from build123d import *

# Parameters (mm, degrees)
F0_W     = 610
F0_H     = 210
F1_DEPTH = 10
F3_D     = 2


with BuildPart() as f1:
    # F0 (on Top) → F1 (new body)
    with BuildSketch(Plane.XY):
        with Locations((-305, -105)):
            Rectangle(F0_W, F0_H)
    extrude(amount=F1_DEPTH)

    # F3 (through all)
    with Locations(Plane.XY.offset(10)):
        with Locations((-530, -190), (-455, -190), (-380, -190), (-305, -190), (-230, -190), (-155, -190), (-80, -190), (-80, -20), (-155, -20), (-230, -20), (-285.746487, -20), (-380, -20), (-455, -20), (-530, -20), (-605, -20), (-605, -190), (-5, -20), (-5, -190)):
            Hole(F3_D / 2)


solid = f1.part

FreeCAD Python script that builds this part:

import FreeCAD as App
import Part
import Sketcher
from FreeCAD import Vector

doc = App.newDocument("Part")
body = doc.addObject("PartDesign::Body", "Body")

sketch1 = body.newObject("Sketcher::SketchObject", "Sketch")
sketch1.AttachmentSupport = (doc.getObject("XY_Plane"), [""])
sketch1.MapMode = "FlatFace"
sketch1.addGeometry([
    Part.LineSegment(Vector(-610, 0, 0), Vector(-610, -210, 0)),
    Part.LineSegment(Vector(-610, -210, 0), Vector(0, -210, 0)),
    Part.LineSegment(Vector(0, -210, 0), Vector(0, 0, 0)),
    Part.LineSegment(Vector(0, 0, 0), Vector(-610, 0, 0)),
], False)
sketch1.addConstraint([
    Sketcher.Constraint("Coincident", 0, 2, 1, 1),
    Sketcher.Constraint("Coincident", 1, 2, 2, 1),
    Sketcher.Constraint("Coincident", 2, 2, 3, 1),
    Sketcher.Constraint("Coincident", 3, 2, 0, 1),
    Sketcher.Constraint("Vertical", 0),
    Sketcher.Constraint("Horizontal", 1),
    Sketcher.Constraint("Vertical", 2),
    Sketcher.Constraint("Horizontal", 3),
    Sketcher.Constraint("Coincident", 2, 2, -1, 1),
    Sketcher.Constraint("DistanceX", 1, 1, 1, 2, 610.0),
    Sketcher.Constraint("DistanceY", 0, 2, 0, 1, 210.0),
])
pad1 = body.newObject("PartDesign::Pad", "Pad")
pad1.Profile = sketch1
pad1.Length = 10

sketch2 = body.newObject("Sketcher::SketchObject", "Sketch001")
sketch2.AttachmentSupport = (doc.getObject("XY_Plane"), [""])
sketch2.MapMode = "FlatFace"
sketch2.AttachmentOffset = App.Placement(Vector(0, 0, 10), App.Rotation())
sketch2.addGeometry([
    Part.Circle(Vector(-530, -190, 0), Vector(0, 0, 1), 1),
    Part.Circle(Vector(-455, -190, 0), Vector(0, 0, 1), 1),
    Part.Circle(Vector(-380, -190, 0), Vector(0, 0, 1), 1),
    Part.Circle(Vector(-305, -190, 0), Vector(0, 0, 1), 1),
    Part.Circle(Vector(-230, -190, 0), Vector(0, 0, 1), 1),
    Part.Circle(Vector(-155, -190, 0), Vector(0, 0, 1), 1),
    Part.Circle(Vector(-80, -190, 0), Vector(0, 0, 1), 1),
    Part.Circle(Vector(-80, -20, 0), Vector(0, 0, 1), 1),
    Part.Circle(Vector(-155, -20, 0), Vector(0, 0, 1), 1),
    Part.Circle(Vector(-230, -20, 0), Vector(0, 0, 1), 1),
    Part.Circle(Vector(-285.7, -20, 0), Vector(0, 0, 1), 1),
    Part.Circle(Vector(-380, -20, 0), Vector(0, 0, 1), 1),
    Part.Circle(Vector(-455, -20, 0), Vector(0, 0, 1), 1),
    Part.Circle(Vector(-530, -20, 0), Vector(0, 0, 1), 1),
    Part.Circle(Vector(-605, -20, 0), Vector(0, 0, 1), 1),
    Part.Circle(Vector(-605, -190, 0), Vector(0, 0, 1), 1),
    Part.Circle(Vector(-5, -20, 0), Vector(0, 0, 1), 1),
    Part.Circle(Vector(-5, -190, 0), Vector(0, 0, 1), 1),
], False)
sketch2.addConstraint([
    Sketcher.Constraint("Equal", 0, 1),
    Sketcher.Constraint("Equal", 1, 2),
    Sketcher.Constraint("Equal", 2, 3),
    Sketcher.Constraint("Equal", 3, 4),
    Sketcher.Constraint("Equal", 4, 5),
    Sketcher.Constraint("Equal", 5, 6),
    Sketcher.Constraint("Equal", 6, 7),
    Sketcher.Constraint("Equal", 7, 8),
    Sketcher.Constraint("Equal", 8, 9),
    Sketcher.Constraint("Equal", 9, 10),
    Sketcher.Constraint("Equal", 10, 11),
    Sketcher.Constraint("Equal", 11, 12),
    Sketcher.Constraint("Equal", 12, 13),
    Sketcher.Constraint("Equal", 13, 14),
    Sketcher.Constraint("Equal", 14, 15),
    Sketcher.Constraint("Equal", 15, 16),
    Sketcher.Constraint("Equal", 16, 17),
    Sketcher.Constraint("Horizontal", 0, 3, 1, 3),
    Sketcher.Constraint("Horizontal", 1, 3, 2, 3),
    Sketcher.Constraint("Horizontal", 2, 3, 3, 3),
    Sketcher.Constraint("Horizontal", 3, 3, 4, 3),
    Sketcher.Constraint("Horizontal", 4, 3, 5, 3),
    Sketcher.Constraint("Horizontal", 5, 3, 6, 3),
    Sketcher.Constraint("Horizontal", 7, 3, 8, 3),
    Sketcher.Constraint("Horizontal", 8, 3, 9, 3),
    Sketcher.Constraint("Horizontal", 9, 3, 10, 3),
    Sketcher.Constraint("Horizontal", 10, 3, 11, 3),
    Sketcher.Constraint("Horizontal", 11, 3, 12, 3),
    Sketcher.Constraint("Horizontal", 12, 3, 13, 3),
    Sketcher.Constraint("Horizontal", 13, 3, 14, 3),
    Sketcher.Constraint("Horizontal", 6, 3, 15, 3),
    Sketcher.Constraint("Horizontal", 14, 3, 16, 3),
    Sketcher.Constraint("Horizontal", 15, 3, 17, 3),
    Sketcher.Constraint("Vertical", 6, 3, 7, 3),
    Sketcher.Constraint("Vertical", 5, 3, 8, 3),
    Sketcher.Constraint("Vertical", 4, 3, 9, 3),
    Sketcher.Constraint("Vertical", 2, 3, 11, 3),
    Sketcher.Constraint("Vertical", 1, 3, 12, 3),
    Sketcher.Constraint("Vertical", 0, 3, 13, 3),
    Sketcher.Constraint("Vertical", 14, 3, 15, 3),
    Sketcher.Constraint("Vertical", 16, 3, 17, 3),
    Sketcher.Constraint("Diameter", 0, 2.0),
    Sketcher.Constraint("DistanceX", 0, 3, -1, 1, 530.0),
    Sketcher.Constraint("DistanceY", 0, 3, -1, 1, 190.0),
    Sketcher.Constraint("DistanceX", 1, 3, -1, 1, 455.0),
    Sketcher.Constraint("DistanceX", 2, 3, -1, 1, 380.0),
    Sketcher.Constraint("DistanceX", 3, 3, -1, 1, 305.0),
    Sketcher.Constraint("DistanceX", 4, 3, -1, 1, 230.0),
    Sketcher.Constraint("DistanceX", 5, 3, -1, 1, 155.0),
    Sketcher.Constraint("DistanceX", 6, 3, -1, 1, 80.0),
    Sketcher.Constraint("DistanceY", 7, 3, -1, 1, 20.0),
    Sketcher.Constraint("DistanceX", 14, 3, -1, 1, 605.0),
    Sketcher.Constraint("DistanceX", 16, 3, -1, 1, 5.0),
    Sketcher.Constraint("DistanceX", 10, 3, -1, 1, 285.746487),
])
doc.recompute()
hole = body.newObject("PartDesign::Hole", "Hole")
hole.Profile = sketch2
hole.ThreadType = "None"
hole.Diameter = 2
hole.DepthType = "ThroughAll"

doc.recompute()
